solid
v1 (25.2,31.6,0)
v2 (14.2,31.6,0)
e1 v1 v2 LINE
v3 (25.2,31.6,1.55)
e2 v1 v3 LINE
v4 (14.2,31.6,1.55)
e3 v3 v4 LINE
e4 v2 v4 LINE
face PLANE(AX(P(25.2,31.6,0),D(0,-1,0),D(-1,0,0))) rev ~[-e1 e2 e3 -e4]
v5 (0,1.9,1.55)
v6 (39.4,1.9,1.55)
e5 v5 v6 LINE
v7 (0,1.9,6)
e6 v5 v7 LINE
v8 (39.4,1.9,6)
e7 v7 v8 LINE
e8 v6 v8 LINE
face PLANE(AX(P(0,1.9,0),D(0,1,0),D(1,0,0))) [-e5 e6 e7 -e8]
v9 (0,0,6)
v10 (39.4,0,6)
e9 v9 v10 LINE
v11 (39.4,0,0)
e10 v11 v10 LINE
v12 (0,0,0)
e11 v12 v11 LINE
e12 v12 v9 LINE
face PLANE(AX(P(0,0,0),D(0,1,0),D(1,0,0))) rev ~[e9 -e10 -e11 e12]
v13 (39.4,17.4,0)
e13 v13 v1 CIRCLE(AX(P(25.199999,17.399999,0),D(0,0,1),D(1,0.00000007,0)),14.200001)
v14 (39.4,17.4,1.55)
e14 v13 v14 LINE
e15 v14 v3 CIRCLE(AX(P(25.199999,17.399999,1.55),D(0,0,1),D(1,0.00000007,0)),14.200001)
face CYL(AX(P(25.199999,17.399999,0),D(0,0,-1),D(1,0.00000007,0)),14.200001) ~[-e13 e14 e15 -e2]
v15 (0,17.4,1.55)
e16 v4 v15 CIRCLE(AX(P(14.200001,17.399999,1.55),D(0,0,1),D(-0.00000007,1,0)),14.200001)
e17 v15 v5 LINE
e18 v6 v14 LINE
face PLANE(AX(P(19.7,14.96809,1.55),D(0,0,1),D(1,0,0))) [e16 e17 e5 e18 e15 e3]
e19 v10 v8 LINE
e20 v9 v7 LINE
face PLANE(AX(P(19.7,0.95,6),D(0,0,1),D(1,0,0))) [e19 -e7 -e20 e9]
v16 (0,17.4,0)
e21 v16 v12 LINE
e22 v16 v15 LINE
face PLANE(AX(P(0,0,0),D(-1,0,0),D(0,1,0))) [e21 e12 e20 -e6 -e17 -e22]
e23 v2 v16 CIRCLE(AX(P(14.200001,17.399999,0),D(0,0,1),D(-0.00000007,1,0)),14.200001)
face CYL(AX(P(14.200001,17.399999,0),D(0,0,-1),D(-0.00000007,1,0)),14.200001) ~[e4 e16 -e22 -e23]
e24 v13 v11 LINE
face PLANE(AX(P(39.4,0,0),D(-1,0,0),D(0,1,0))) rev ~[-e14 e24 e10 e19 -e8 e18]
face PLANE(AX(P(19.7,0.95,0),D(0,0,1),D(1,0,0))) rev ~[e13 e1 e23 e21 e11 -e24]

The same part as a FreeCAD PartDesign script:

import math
import FreeCAD as App
import Part
import Sketcher
Q = App.Units.Quantity

doc = App.newDocument("Part")
body = doc.addObject("PartDesign::Body", "Body")

# Sketch on XY plane
sketch1 = body.newObject("Sketcher::SketchObject", "Sketch")
sketch1.AttachmentSupport = (doc.getObject("XY_Plane"), [""])
sketch1.MapMode = "FlatFace"
sketch1.addGeometry([
    Part.LineSegment(App.Vector(0, 17.4, 0), App.Vector(0, 1.9, 0)),  # 0
    Part.LineSegment(App.Vector(0, 1.9, 0), App.Vector(39.4, 1.9, 0)),  # 1
    Part.LineSegment(App.Vector(39.4, 1.9, 0), App.Vector(39.4, 17.4, 0)),  # 2
    Part.ArcOfCircle(Part.Circle(App.Vector(25.199999, 17.399999, 0), App.Vector(0, 0, 1), 14.200001), math.radians(0.000004), math.radians(89.999996)),  # 3
    Part.LineSegment(App.Vector(25.2, 31.6, 0), App.Vector(14.2, 31.6, 0)),  # 4
    Part.ArcOfCircle(Part.Circle(App.Vector(14.200001, 17.399999, 0), App.Vector(0, 0, 1), 14.200001), math.radians(90.000004), math.radians(179.999996)),  # 5
], False)
sketch1.addConstraint([
    Sketcher.Constraint("Coincident", 0, 2, 1, 1),
    Sketcher.Constraint("Coincident", 1, 2, 2, 1),
    Sketcher.Constraint("Tangent", 2, 2, 3, 1),
    Sketcher.Constraint("Tangent", 3, 2, 4, 1),
    Sketcher.Constraint("Tangent", 4, 2, 5, 1),
    Sketcher.Constraint("Tangent", 5, 2, 0, 1),
    Sketcher.Constraint("Vertical", 0),
    Sketcher.Constraint("Horizontal", 1),
    Sketcher.Constraint("Vertical", 2),
    Sketcher.Constraint("Horizontal", 4),
    Sketcher.Constraint("Equal", 3, 5),
    Sketcher.Constraint("PointOnObject", 0, 2, -2),
    Sketcher.Constraint("Radius", 3, Q("14.200001 mm")),
    Sketcher.Constraint("DistanceX", 4, 2, 4, 1, Q("11 mm")),
    Sketcher.Constraint("DistanceY", 0, 2, 0, 1, Q("15.5 mm")),
    Sketcher.Constraint("DistanceY", -1, 1, 3, 3, Q("17.399999 mm")),
])
pad1 = body.newObject("PartDesign::Pad", "Pad")
pad1.Profile = sketch1
pad1.Length = 1.55

# Sketch on XY plane
sketch2 = body.newObject("Sketcher::SketchObject", "Sketch001")
sketch2.AttachmentSupport = (doc.getObject("XY_Plane"), [""])
sketch2.MapMode = "FlatFace"
sketch2.addGeometry([
    Part.LineSegment(App.Vector(0, 1.9, 0), App.Vector(0, 0, 0)),
    Part.LineSegment(App.Vector(0, 0, 0), App.Vector(39.4, 0, 0)),
    Part.LineSegment(App.Vector(39.4, 0, 0), App.Vector(39.4, 1.9, 0)),
    Part.LineSegment(App.Vector(39.4, 1.9, 0), App.Vector(0, 1.9, 0)),
], False)
sketch2.addConstraint([
    Sketcher.Constraint("Coincident", 0, 2, 1, 1),
    Sketcher.Constraint("Coincident", 1, 2, 2, 1),
    Sketcher.Constraint("Coincident", 2, 2, 3, 1),
    Sketcher.Constraint("Coincident", 3, 2, 0, 1),
    Sketcher.Constraint("Vertical", 0),
    Sketcher.Constraint("Horizontal", 1),
    Sketcher.Constraint("Vertical", 2),
    Sketcher.Constraint("Horizontal", 3),
    Sketcher.Constraint("Coincident", 0, 2, -1, 1),
    Sketcher.Constraint("DistanceX", 1, 1, 1, 2, Q("39.4 mm")),
    Sketcher.Constraint("DistanceY", 0, 2, 0, 1, Q("1.9 mm")),
])
pad2 = body.newObject("PartDesign::Pad", "Pad001")
pad2.Profile = sketch2
pad2.Length = 6

doc.recompute()
